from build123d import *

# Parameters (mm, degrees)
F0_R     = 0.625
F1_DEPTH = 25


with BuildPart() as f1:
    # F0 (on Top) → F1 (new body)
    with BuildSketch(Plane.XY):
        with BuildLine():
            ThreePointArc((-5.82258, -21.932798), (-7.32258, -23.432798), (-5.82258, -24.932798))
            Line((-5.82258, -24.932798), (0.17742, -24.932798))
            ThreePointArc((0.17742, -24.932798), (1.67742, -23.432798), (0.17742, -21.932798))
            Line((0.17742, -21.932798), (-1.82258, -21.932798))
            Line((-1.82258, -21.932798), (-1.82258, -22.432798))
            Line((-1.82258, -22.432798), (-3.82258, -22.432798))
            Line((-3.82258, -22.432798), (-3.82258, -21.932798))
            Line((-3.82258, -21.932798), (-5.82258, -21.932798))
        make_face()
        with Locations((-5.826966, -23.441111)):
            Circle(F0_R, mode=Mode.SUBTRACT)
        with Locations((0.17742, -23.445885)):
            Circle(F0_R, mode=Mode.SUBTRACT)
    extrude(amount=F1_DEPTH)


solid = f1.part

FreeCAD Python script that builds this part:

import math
import FreeCAD as App
import Part
import Sketcher

V = App.Vector

doc = App.newDocument("Part")
body = doc.addObject("PartDesign::Body", "Body")

# Sketch on XY plane
sketch1 = body.newObject("Sketcher::SketchObject", "Sketch")
sketch1.AttachmentSupport = (doc.getObject("XY_Plane"), [""])
sketch1.MapMode = "FlatFace"
sketch1.addGeometry([
    Part.ArcOfCircle(Part.Circle(V(-5.8, -23.4, 0), V(0, 0, 1), 1.5), math.radians(90), math.radians(270)),  # 0
    Part.LineSegment(V(-5.8, -24.9, 0), V(0.2, -24.9, 0)),  # 1
    Part.ArcOfCircle(Part.Circle(V(0.2, -23.4, 0), V(0, 0, 1), 1.5), math.radians(-90), math.radians(90)),  # 2
    Part.LineSegment(V(0.2, -21.9, 0), V(-1.8, -21.9, 0)),  # 3
    Part.LineSegment(V(-1.8, -21.9, 0), V(-1.8, -22.4, 0)),  # 4
    Part.LineSegment(V(-1.8, -22.4, 0), V(-3.8, -22.4, 0)),  # 5
    Part.LineSegment(V(-3.8, -22.4, 0), V(-3.8, -21.9, 0)),  # 6
    Part.LineSegment(V(-3.8, -21.9, 0), V(-5.8, -21.9, 0)),  # 7
    Part.Circle(V(0.2, -23.4, 0), V(0, 0, 1), 0.6),  # 8
    Part.Circle(V(-5.8, -23.4, 0), V(0, 0, 1), 0.6),  # 9
], False)
sketch1.addConstraint([
    Sketcher.Constraint("Tangent", 0, 2, 1, 1),
    Sketcher.Constraint("Tangent", 1, 2, 2, 1),
    Sketcher.Constraint("Tangent", 2, 2, 3, 1),
    Sketcher.Constraint("Coincident", 3, 2, 4, 1),
    Sketcher.Constraint("Coincident", 4, 2, 5, 1),
    Sketcher.Constraint("Coincident", 5, 2, 6, 1),
    Sketcher.Constraint("Coincident", 6, 2, 7, 1),
    Sketcher.Constraint("Tangent", 7, 2, 0, 1),
    Sketcher.Constraint("Horizontal", 1),
    Sketcher.Constraint("Horizontal", 3),
    Sketcher.Constraint("Vertical", 4),
    Sketcher.Constraint("Horizontal", 5),
    Sketcher.Constraint("Vertical", 6),
    Sketcher.Constraint("Horizontal", 7),
    Sketcher.Constraint("Equal", 0, 2),
    Sketcher.Constraint("Equal", 8, 9),
    Sketcher.Constraint("Vertical", 2, 3, 8, 3),
    Sketcher.Constraint("Equal", 3, 5),
    Sketcher.Constraint("Equal", 5, 7),
    Sketcher.Constraint("Radius", 0, 1.5),
    Sketcher.Constraint("Diameter", 8, 1.25),
    Sketcher.Constraint("DistanceX", 1, 1, 1, 2, 6.0),
    Sketcher.Constraint("DistanceY", 4, 2, 4, 1, 0.5),
    Sketcher.Constraint("DistanceX", 0, 3, -1, 1, 5.82258),
    Sketcher.Constraint("DistanceY", 9, 3, -1, 1, 23.441111),
    Sketcher.Constraint("DistanceY", 0, 3, -1, 1, 23.432798),
    Sketcher.Constraint("DistanceY", 8, 3, -1, 1, 23.445885),
    Sketcher.Constraint("DistanceX", 9, 3, -1, 1, 5.826966),
])
pad1 = body.newObject("PartDesign::Pad", "Pad")
pad1.Profile = sketch1
pad1.Length = 25

doc.recompute()
